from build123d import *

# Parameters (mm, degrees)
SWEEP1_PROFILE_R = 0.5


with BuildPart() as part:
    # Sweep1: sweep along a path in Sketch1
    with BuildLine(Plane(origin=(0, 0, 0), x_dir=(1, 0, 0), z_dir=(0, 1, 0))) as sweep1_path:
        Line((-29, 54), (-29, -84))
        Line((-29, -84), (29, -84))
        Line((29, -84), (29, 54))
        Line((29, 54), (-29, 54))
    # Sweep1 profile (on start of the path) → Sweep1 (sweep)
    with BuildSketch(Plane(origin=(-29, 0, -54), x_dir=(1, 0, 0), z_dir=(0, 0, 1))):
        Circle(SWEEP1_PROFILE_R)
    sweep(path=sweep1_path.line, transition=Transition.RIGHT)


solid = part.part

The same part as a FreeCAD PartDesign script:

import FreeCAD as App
import Part
import Sketcher

V = App.Vector

doc = App.newDocument("Part")
body = doc.addObject("PartDesign::Body", "Body")

sketch1 = body.newObject("Sketcher::SketchObject", "Sketch")
sketch1.AttachmentSupport = (doc.getObject("XY_Plane"), [""])
sketch1.MapMode = "FlatFace"
sketch1.AttachmentOffset = App.Placement(V(0, 0, -54), App.Rotation())
sketch1.addGeometry(Part.Circle(V(-29, 0, 0), V(0, 0, 1), 0.5), False)
sketch1.addConstraint(Sketcher.Constraint("PointOnObject", 0, 3, -1))
sketch1.addConstraint(Sketcher.Constraint("Diameter", 0, 1.0))
sketch1.addConstraint(Sketcher.Constraint("DistanceX", 0, 3, -1, 1, 29.0))

sketch2 = body.newObject("Sketcher::SketchObject", "Sketch001")
sketch2.AttachmentSupport = (doc.getObject("XZ_Plane"), [""])
sketch2.MapMode = "FlatFace"
sketch2.addGeometry(Part.LineSegment(V(-29, -54, 0), V(-29, 84, 0)), False)
sketch2.addGeometry(Part.LineSegment(V(-29, 84, 0), V(29, 84, 0)), False)
sketch2.addGeometry(Part.LineSegment(V(29, 84, 0), V(29, -54, 0)), False)
sketch2.addGeometry(Part.LineSegment(V(29, -54, 0), V(-29, -54, 0)), False)
sketch2.addConstraint(Sketcher.Constraint("Coincident", 0, 2, 1, 1))
sketch2.addConstraint(Sketcher.Constraint("Coincident", 1, 2, 2, 1))
sketch2.addConstraint(Sketcher.Constraint("Coincident", 2, 2, 3, 1))
sketch2.addConstraint(Sketcher.Constraint("Coincident", 3, 2, 0, 1))
sketch2.addConstraint(Sketcher.Constraint("Vertical", 0))
sketch2.addConstraint(Sketcher.Constraint("Horizontal", 1))
sketch2.addConstraint(Sketcher.Constraint("Vertical", 2))
sketch2.addConstraint(Sketcher.Constraint("Horizontal", 3))
sketch2.addConstraint(Sketcher.Constraint("DistanceX", 1, 1, 1, 2, 58.0))
sketch2.addConstraint(Sketcher.Constraint("DistanceY", 0, 1, 0, 2, 138.0))
sketch2.addConstraint(Sketcher.Constraint("DistanceX", 0, 2, -1, 1, 29.0))
sketch2.addConstraint(Sketcher.Constraint("DistanceY", -1, 1, 0, 2, 84.0))
doc.recompute()

additivepipe = body.newObject("PartDesign::AdditivePipe", "AdditivePipe")
additivepipe.Profile = sketch1
additivepipe.Spine = (sketch2, ["Edge1", "Edge2", "Edge3", "Edge4"])
additivepipe.Transition = "Right corner"

doc.recompute()
